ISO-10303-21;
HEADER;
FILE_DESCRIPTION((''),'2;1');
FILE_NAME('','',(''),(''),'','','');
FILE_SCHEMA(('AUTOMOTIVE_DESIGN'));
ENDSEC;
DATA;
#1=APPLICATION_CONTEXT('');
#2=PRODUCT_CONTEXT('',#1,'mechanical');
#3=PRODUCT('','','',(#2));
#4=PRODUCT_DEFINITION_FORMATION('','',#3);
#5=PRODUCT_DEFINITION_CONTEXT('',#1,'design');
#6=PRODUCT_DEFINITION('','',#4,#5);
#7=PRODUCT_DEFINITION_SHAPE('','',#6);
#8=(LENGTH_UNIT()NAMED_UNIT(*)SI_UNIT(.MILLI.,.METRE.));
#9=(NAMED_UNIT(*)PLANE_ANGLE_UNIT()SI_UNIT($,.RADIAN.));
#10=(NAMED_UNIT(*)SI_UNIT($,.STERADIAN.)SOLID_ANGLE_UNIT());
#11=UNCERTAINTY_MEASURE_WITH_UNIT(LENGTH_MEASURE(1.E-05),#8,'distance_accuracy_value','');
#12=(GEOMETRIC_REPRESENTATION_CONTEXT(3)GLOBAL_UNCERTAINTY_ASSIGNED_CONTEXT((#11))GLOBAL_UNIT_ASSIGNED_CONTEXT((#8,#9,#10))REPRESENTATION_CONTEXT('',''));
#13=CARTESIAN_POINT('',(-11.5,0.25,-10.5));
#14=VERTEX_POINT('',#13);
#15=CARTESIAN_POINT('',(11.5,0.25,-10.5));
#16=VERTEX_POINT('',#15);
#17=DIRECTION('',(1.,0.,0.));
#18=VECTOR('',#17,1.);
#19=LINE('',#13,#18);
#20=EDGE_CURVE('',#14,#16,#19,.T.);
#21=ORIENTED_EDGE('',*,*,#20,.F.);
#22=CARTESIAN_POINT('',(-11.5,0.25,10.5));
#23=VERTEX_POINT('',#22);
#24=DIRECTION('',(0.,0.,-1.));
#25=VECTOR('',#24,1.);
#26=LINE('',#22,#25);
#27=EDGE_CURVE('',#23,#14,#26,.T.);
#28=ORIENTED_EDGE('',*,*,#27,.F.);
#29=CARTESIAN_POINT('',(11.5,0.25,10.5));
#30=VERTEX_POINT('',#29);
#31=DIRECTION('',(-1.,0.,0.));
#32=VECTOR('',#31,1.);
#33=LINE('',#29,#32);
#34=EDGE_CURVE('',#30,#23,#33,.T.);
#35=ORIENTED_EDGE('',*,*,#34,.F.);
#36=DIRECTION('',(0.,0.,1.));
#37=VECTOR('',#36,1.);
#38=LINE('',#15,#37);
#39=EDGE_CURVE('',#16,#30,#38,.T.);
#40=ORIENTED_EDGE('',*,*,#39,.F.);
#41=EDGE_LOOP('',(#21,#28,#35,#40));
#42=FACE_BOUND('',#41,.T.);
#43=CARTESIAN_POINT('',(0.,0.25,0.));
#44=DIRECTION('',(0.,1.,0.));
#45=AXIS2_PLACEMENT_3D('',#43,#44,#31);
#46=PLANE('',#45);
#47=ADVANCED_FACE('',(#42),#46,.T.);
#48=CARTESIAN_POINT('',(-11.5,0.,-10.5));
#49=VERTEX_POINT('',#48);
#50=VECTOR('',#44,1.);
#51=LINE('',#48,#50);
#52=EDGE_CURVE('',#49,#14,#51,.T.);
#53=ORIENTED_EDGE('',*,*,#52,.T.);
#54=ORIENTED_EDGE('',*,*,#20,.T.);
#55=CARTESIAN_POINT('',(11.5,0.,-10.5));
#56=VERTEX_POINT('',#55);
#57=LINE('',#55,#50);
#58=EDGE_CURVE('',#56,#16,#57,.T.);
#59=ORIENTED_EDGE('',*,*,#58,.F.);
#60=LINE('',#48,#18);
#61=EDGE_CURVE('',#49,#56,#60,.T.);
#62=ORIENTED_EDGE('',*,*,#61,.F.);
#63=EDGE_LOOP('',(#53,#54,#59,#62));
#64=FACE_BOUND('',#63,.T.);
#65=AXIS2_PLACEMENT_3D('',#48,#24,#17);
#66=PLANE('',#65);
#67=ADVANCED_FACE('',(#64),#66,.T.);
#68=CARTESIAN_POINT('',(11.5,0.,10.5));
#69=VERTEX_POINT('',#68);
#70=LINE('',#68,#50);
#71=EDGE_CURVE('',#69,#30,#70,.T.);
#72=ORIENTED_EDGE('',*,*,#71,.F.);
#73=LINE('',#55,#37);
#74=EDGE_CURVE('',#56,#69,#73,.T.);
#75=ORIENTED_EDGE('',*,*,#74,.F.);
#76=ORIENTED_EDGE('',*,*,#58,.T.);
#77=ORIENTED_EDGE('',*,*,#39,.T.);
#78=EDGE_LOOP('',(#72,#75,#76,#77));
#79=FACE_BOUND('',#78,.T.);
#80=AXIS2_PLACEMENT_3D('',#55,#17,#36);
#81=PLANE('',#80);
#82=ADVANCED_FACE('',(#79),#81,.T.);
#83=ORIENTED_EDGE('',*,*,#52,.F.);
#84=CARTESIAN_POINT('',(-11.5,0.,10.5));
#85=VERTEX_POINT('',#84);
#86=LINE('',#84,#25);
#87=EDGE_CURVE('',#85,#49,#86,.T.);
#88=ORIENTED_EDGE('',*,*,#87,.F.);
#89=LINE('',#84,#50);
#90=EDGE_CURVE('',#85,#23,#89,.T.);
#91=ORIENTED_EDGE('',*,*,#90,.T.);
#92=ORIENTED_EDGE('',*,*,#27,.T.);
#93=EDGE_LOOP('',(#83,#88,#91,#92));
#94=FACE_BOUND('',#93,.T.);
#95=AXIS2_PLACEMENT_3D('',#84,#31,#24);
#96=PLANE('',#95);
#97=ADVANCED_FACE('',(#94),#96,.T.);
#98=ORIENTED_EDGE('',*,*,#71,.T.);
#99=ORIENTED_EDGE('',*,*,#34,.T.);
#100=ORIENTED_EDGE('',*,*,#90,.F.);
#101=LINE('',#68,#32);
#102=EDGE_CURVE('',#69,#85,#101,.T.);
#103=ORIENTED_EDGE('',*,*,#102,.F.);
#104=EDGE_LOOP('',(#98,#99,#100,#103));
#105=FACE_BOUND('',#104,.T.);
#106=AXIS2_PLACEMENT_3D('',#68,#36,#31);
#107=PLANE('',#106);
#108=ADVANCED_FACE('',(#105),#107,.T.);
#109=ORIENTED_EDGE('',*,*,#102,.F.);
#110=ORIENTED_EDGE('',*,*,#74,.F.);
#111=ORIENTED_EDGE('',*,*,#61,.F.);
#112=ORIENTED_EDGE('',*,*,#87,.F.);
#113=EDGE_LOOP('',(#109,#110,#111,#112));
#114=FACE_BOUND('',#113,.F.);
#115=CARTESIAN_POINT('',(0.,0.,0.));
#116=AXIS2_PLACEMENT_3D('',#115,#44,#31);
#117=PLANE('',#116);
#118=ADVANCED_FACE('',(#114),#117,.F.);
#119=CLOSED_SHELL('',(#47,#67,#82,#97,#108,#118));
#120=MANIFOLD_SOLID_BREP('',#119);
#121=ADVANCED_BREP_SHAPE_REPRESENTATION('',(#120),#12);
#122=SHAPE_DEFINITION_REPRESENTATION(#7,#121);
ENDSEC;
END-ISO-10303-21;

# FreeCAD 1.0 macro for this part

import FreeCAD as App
import Part
import Sketcher
from FreeCAD import Vector
Q = App.Units.Quantity

doc = App.newDocument("Part")
body = doc.addObject("PartDesign::Body", "Body")

# Sketch on XZ plane
sketch1 = body.newObject("Sketcher::SketchObject", "Sketch")
sketch1.AttachmentSupport = (doc.getObject("XZ_Plane"), [""])
sketch1.MapMode = "FlatFace"
sketch1.addGeometry([
    Part.LineSegment(Vector(-12, 10, 0), Vector(12, 10, 0)),
    Part.LineSegment(Vector(12, 10, 0), Vector(12, -10, 0)),
    Part.LineSegment(Vector(12, -10, 0), Vector(-12, -10, 0)),
    Part.LineSegment(Vector(-12, -10, 0), Vector(-12, 10, 0)),
], False)
sketch1.addConstraint([
    Sketcher.Constraint("Coincident", 0, 2, 1, 1),
    Sketcher.Constraint("Coincident", 1, 2, 2, 1),
    Sketcher.Constraint("Coincident", 2, 2, 3, 1),
    Sketcher.Constraint("Coincident", 3, 2, 0, 1),
    Sketcher.Constraint("Horizontal", 0),
    Sketcher.Constraint("Vertical", 1),
    Sketcher.Constraint("Horizontal", 2),
    Sketcher.Constraint("Vertical", 3),
    Sketcher.Constraint("Symmetric", 0, 2, 2, 2, -1, 1),
    Sketcher.Constraint("DistanceX", 0, 1, 0, 2, Q("23 mm")),
    Sketcher.Constraint("DistanceY", 1, 2, 1, 1, Q("21 mm")),
])
pad1 = body.newObject("PartDesign::Pad", "Pad")
pad1.Profile = sketch1
pad1.Length = 0.25
pad1.Reversed = True

doc.recompute()
